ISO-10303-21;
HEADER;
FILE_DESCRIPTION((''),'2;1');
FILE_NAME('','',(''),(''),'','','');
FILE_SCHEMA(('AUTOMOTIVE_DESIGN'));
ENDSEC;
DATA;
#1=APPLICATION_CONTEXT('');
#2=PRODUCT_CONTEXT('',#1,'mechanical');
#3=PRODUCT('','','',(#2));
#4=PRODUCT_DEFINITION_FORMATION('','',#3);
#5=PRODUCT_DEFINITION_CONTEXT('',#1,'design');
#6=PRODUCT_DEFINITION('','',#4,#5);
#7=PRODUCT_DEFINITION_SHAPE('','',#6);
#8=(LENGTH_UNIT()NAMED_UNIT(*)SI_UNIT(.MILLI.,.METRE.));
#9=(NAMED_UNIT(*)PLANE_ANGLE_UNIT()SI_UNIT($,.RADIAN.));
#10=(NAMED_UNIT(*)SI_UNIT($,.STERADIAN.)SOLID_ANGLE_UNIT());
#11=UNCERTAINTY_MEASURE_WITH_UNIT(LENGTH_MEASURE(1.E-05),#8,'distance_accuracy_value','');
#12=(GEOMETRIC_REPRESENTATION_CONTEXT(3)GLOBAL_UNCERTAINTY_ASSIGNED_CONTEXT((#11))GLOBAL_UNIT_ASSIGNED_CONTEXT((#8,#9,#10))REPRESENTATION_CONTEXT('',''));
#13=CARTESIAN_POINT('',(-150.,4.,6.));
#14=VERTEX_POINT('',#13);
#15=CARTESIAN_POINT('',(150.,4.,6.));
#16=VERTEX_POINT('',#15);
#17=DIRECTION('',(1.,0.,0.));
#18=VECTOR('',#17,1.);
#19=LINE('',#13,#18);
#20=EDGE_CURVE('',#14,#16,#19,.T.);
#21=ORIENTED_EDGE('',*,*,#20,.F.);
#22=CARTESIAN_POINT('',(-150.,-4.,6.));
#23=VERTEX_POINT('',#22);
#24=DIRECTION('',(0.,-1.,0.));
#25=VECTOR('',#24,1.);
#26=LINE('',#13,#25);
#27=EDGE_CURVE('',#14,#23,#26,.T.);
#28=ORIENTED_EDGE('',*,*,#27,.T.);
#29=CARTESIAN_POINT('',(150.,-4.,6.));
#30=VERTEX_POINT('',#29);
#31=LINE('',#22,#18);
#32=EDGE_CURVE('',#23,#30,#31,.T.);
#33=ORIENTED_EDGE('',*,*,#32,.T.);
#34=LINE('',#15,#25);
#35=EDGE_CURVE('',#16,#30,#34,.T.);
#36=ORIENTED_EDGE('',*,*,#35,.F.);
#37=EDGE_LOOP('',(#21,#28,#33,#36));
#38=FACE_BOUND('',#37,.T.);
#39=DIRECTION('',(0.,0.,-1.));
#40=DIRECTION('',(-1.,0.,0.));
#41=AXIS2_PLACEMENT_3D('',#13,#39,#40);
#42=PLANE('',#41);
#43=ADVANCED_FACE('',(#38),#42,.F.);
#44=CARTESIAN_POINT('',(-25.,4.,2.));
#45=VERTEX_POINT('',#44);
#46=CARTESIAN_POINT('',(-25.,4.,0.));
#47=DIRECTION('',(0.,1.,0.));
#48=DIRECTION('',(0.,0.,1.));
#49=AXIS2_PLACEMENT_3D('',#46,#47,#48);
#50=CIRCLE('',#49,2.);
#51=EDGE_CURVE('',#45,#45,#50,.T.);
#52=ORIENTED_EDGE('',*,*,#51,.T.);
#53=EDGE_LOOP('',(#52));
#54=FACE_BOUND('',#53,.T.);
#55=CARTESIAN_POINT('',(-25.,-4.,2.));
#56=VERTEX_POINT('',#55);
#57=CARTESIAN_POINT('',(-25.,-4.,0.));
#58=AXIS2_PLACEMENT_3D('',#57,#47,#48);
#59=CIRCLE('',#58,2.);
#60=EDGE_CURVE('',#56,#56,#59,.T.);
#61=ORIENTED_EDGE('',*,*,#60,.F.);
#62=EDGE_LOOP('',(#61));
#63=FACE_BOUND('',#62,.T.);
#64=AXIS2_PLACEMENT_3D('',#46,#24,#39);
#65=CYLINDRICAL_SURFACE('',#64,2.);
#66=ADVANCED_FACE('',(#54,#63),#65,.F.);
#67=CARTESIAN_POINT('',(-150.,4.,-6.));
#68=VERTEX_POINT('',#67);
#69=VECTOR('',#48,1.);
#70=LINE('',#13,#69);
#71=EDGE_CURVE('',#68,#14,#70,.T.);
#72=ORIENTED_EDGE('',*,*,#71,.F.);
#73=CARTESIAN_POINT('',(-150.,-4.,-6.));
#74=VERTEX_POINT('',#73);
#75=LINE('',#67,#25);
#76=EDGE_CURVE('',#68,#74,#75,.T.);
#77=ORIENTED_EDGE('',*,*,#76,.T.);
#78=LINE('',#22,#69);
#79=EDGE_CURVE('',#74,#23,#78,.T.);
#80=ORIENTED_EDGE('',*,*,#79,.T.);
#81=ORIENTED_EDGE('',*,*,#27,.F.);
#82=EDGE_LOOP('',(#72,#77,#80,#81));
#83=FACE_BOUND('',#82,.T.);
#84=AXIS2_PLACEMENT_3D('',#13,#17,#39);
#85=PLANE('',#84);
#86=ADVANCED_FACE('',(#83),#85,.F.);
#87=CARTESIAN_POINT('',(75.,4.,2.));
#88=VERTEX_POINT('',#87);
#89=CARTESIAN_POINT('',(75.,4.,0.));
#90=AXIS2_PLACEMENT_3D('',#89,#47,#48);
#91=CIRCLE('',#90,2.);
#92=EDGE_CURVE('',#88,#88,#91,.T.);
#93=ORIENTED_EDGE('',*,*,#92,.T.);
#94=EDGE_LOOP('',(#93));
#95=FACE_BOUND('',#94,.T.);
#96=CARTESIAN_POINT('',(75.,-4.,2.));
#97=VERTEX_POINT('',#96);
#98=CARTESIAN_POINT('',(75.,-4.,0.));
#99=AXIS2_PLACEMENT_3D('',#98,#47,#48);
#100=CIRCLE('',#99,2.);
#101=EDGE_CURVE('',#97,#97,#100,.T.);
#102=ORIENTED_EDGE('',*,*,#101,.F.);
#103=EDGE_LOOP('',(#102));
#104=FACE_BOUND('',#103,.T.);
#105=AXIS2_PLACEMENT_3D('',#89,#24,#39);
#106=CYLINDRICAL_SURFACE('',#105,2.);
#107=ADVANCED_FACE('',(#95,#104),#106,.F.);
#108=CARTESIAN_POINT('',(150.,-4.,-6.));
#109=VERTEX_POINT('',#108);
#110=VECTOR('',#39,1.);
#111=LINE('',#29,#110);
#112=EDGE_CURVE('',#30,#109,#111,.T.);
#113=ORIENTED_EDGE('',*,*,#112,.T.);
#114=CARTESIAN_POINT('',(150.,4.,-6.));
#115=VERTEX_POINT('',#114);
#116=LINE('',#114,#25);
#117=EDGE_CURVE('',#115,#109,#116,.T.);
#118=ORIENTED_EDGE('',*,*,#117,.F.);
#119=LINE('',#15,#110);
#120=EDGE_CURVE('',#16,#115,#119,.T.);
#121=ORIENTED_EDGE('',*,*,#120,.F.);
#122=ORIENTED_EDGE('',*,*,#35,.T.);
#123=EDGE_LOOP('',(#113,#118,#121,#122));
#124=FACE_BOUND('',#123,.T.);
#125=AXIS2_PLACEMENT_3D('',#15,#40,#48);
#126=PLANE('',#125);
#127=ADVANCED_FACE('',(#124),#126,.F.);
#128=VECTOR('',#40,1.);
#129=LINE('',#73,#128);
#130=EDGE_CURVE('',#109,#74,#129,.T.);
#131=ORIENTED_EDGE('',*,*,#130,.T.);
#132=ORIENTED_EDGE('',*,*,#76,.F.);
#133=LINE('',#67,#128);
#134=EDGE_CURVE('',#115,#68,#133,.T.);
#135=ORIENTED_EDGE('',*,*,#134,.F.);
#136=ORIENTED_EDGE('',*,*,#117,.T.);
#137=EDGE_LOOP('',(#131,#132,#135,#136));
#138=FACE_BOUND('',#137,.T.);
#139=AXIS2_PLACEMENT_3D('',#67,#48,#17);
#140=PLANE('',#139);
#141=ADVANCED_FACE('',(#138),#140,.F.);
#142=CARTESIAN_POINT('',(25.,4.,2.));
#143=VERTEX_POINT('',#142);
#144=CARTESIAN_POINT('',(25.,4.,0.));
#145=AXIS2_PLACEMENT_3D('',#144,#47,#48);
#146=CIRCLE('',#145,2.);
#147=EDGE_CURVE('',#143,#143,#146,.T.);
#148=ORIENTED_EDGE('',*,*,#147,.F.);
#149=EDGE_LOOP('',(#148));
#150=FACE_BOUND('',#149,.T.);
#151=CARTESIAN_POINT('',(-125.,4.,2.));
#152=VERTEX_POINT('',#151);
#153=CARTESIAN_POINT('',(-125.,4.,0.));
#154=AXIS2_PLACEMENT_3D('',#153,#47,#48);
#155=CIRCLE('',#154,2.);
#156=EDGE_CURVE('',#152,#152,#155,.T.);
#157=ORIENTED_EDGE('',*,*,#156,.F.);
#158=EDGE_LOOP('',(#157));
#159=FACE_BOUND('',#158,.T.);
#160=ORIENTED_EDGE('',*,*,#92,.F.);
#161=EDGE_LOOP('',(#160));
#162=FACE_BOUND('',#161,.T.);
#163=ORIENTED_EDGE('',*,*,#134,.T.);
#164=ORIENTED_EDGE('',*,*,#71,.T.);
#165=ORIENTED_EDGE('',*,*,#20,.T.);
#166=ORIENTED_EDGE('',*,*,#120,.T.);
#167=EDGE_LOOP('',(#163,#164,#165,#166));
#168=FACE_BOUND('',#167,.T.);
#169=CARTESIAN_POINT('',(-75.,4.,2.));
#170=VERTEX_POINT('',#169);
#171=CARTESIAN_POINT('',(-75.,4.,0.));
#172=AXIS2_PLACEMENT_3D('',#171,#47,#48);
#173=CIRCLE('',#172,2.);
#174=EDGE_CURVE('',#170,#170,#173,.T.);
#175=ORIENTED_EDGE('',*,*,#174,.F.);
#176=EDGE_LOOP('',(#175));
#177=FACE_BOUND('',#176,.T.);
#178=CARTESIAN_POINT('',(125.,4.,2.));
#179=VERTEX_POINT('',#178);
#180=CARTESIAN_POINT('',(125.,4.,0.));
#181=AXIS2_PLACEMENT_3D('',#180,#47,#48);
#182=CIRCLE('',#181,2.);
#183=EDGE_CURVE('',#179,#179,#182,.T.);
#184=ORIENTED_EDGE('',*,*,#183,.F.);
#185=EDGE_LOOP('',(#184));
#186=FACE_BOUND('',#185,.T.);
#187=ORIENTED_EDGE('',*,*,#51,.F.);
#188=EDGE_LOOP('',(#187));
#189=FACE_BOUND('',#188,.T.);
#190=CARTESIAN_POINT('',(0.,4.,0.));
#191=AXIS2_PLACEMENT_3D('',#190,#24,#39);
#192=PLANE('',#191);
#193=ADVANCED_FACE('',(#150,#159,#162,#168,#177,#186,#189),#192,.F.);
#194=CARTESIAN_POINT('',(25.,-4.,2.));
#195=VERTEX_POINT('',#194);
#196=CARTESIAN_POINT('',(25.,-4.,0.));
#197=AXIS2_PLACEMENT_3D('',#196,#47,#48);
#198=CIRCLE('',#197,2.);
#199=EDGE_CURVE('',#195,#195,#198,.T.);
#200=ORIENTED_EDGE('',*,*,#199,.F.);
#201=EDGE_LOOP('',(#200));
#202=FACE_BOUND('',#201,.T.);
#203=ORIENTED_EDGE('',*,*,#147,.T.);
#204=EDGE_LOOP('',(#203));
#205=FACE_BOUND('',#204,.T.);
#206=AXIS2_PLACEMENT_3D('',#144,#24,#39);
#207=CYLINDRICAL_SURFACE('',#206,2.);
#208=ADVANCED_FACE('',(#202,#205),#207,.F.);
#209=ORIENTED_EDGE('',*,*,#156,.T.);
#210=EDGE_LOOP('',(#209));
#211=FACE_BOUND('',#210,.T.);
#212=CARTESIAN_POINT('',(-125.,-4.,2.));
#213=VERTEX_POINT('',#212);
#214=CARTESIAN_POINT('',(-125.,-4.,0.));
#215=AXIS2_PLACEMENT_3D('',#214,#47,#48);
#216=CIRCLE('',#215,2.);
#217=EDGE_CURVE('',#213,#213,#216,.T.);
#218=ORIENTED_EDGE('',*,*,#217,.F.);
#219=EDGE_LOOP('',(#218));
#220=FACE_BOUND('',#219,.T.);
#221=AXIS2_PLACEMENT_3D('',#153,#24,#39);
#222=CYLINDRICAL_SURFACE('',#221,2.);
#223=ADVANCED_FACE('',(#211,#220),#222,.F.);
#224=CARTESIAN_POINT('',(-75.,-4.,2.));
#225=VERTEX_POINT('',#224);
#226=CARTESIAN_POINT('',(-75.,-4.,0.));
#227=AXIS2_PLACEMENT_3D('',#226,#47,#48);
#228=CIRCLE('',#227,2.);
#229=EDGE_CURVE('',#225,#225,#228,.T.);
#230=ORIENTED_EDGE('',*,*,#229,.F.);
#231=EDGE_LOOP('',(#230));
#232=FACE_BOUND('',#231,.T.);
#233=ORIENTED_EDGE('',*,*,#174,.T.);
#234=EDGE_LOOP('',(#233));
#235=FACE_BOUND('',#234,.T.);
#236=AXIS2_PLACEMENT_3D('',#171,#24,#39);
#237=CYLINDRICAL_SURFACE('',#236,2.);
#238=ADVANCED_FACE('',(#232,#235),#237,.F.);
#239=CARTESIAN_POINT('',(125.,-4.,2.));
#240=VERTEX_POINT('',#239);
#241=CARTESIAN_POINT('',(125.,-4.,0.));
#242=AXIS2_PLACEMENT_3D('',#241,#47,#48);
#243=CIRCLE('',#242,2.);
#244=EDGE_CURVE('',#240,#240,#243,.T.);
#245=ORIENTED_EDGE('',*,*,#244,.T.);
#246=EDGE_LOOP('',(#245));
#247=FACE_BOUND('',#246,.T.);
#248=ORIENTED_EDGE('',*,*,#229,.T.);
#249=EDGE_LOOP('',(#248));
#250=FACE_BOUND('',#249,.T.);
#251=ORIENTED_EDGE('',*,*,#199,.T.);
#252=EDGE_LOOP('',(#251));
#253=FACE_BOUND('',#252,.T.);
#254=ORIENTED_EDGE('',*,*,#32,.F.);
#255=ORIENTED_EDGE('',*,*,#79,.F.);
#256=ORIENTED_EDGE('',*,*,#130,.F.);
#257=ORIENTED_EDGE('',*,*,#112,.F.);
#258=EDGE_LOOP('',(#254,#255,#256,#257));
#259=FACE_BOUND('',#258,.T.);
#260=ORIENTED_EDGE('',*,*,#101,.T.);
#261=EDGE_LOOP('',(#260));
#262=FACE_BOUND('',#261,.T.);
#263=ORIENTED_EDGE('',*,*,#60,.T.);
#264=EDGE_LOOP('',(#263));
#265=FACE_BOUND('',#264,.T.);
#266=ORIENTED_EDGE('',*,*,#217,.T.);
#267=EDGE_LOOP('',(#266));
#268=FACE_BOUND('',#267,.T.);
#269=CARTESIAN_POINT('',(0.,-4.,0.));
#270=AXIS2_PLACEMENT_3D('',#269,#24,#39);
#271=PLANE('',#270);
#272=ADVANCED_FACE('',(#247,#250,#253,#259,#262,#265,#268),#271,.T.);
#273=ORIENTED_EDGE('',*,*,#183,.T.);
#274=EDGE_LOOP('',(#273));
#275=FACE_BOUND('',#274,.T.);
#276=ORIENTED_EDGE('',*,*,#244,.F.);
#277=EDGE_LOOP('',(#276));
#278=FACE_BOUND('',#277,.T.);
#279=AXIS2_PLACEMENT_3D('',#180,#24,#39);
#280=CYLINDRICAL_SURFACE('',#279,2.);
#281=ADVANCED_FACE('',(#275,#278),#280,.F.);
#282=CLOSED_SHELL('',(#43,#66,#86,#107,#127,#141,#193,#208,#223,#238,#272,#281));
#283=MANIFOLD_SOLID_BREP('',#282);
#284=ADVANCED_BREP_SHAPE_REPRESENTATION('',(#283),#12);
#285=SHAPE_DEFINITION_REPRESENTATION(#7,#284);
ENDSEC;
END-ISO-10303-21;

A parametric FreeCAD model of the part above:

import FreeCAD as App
import Part
import Sketcher

V = App.Vector
Q = App.Units.Quantity

doc = App.newDocument("Part")
params = doc.addObject("Spreadsheet::Sheet", "Params")
for row, (alias, value) in enumerate([
    ("sketch1_diameter", "4 mm"),
    ("sketch1_width", "300 mm"),
    ("sketch1_height", "12 mm"),
    ("pad1_length", "8 mm"),
], start=1):
    params.set(f"A{row}", alias)
    params.set(f"B{row}", "=" + value)
    params.setAlias(f"B{row}", alias)

body = doc.addObject("PartDesign::Body", "Body")

sketch1 = body.newObject("Sketcher::SketchObject", "Sketch")
sketch1.AttachmentSupport = (doc.getObject("XZ_Plane"), [""])
sketch1.MapMode = "FlatFace"
sketch1.addGeometry([
    Part.LineSegment(V(-150, -6, 0), V(-150, 6, 0)),
    Part.LineSegment(V(-150, 6, 0), V(150, 6, 0)),
    Part.LineSegment(V(150, 6, 0), V(150, -6, 0)),
    Part.LineSegment(V(150, -6, 0), V(-150, -6, 0)),
    Part.Circle(V(-125, 0, 0), V(0, 0, 1), 2),
    Part.Circle(V(-75, 0, 0), V(0, 0, 1), 2),
    Part.Circle(V(-25, 0, 0), V(0, 0, 1), 2),
    Part.Circle(V(25, 0, 0), V(0, 0, 1), 2),
    Part.Circle(V(75, 0, 0), V(0, 0, 1), 2),
    Part.Circle(V(125, 0, 0), V(0, 0, 1), 2),
], False)
sketch1.addConstraint([
    Sketcher.Constraint("Coincident", 0, 2, 1, 1),
    Sketcher.Constraint("Coincident", 1, 2, 2, 1),
    Sketcher.Constraint("Coincident", 2, 2, 3, 1),
    Sketcher.Constraint("Coincident", 3, 2, 0, 1),
    Sketcher.Constraint("Vertical", 0),
    Sketcher.Constraint("Horizontal", 1),
    Sketcher.Constraint("Vertical", 2),
    Sketcher.Constraint("Horizontal", 3),
    Sketcher.Constraint("Equal", 4, 5),
    Sketcher.Constraint("Equal", 5, 6),
    Sketcher.Constraint("Equal", 6, 7),
    Sketcher.Constraint("Equal", 7, 8),
    Sketcher.Constraint("Equal", 8, 9),
    Sketcher.Constraint("Symmetric", 6, 3, 7, 3, -1, 1),
    Sketcher.Constraint("Symmetric", 5, 3, 8, 3, -1, 1),
    Sketcher.Constraint("Symmetric", 4, 3, 9, 3, -1, 1),
    Sketcher.Constraint("Symmetric", 0, 2, 2, 2, -1, 1),
    Sketcher.Constraint("PointOnObject", 4, 3, -1),
    Sketcher.Constraint("PointOnObject", 5, 3, -1),
    Sketcher.Constraint("PointOnObject", 6, 3, -1),
    Sketcher.Constraint("Diameter", 4, Q("4 mm")),
    Sketcher.Constraint("DistanceX", 1, 1, 1, 2, Q("300 mm")),
    Sketcher.Constraint("DistanceY", 0, 1, 0, 2, Q("12 mm")),
    Sketcher.Constraint("DistanceX", 4, 3, -1, 1, Q("125 mm")),
    Sketcher.Constraint("DistanceX", 5, 3, -1, 1, Q("75 mm")),
    Sketcher.Constraint("DistanceX", 6, 3, -1, 1, Q("25 mm")),
])
sketch1.setExpression("Constraints[20]", "Params.sketch1_diameter")
sketch1.setExpression("Constraints[21]", "Params.sketch1_width")
sketch1.setExpression("Constraints[22]", "Params.sketch1_height")
pad1 = body.newObject("PartDesign::Pad", "Pad")
pad1.Profile = sketch1
pad1.setExpression("Length", "Params.pad1_length")
pad1.Midplane = True

doc.recompute()
